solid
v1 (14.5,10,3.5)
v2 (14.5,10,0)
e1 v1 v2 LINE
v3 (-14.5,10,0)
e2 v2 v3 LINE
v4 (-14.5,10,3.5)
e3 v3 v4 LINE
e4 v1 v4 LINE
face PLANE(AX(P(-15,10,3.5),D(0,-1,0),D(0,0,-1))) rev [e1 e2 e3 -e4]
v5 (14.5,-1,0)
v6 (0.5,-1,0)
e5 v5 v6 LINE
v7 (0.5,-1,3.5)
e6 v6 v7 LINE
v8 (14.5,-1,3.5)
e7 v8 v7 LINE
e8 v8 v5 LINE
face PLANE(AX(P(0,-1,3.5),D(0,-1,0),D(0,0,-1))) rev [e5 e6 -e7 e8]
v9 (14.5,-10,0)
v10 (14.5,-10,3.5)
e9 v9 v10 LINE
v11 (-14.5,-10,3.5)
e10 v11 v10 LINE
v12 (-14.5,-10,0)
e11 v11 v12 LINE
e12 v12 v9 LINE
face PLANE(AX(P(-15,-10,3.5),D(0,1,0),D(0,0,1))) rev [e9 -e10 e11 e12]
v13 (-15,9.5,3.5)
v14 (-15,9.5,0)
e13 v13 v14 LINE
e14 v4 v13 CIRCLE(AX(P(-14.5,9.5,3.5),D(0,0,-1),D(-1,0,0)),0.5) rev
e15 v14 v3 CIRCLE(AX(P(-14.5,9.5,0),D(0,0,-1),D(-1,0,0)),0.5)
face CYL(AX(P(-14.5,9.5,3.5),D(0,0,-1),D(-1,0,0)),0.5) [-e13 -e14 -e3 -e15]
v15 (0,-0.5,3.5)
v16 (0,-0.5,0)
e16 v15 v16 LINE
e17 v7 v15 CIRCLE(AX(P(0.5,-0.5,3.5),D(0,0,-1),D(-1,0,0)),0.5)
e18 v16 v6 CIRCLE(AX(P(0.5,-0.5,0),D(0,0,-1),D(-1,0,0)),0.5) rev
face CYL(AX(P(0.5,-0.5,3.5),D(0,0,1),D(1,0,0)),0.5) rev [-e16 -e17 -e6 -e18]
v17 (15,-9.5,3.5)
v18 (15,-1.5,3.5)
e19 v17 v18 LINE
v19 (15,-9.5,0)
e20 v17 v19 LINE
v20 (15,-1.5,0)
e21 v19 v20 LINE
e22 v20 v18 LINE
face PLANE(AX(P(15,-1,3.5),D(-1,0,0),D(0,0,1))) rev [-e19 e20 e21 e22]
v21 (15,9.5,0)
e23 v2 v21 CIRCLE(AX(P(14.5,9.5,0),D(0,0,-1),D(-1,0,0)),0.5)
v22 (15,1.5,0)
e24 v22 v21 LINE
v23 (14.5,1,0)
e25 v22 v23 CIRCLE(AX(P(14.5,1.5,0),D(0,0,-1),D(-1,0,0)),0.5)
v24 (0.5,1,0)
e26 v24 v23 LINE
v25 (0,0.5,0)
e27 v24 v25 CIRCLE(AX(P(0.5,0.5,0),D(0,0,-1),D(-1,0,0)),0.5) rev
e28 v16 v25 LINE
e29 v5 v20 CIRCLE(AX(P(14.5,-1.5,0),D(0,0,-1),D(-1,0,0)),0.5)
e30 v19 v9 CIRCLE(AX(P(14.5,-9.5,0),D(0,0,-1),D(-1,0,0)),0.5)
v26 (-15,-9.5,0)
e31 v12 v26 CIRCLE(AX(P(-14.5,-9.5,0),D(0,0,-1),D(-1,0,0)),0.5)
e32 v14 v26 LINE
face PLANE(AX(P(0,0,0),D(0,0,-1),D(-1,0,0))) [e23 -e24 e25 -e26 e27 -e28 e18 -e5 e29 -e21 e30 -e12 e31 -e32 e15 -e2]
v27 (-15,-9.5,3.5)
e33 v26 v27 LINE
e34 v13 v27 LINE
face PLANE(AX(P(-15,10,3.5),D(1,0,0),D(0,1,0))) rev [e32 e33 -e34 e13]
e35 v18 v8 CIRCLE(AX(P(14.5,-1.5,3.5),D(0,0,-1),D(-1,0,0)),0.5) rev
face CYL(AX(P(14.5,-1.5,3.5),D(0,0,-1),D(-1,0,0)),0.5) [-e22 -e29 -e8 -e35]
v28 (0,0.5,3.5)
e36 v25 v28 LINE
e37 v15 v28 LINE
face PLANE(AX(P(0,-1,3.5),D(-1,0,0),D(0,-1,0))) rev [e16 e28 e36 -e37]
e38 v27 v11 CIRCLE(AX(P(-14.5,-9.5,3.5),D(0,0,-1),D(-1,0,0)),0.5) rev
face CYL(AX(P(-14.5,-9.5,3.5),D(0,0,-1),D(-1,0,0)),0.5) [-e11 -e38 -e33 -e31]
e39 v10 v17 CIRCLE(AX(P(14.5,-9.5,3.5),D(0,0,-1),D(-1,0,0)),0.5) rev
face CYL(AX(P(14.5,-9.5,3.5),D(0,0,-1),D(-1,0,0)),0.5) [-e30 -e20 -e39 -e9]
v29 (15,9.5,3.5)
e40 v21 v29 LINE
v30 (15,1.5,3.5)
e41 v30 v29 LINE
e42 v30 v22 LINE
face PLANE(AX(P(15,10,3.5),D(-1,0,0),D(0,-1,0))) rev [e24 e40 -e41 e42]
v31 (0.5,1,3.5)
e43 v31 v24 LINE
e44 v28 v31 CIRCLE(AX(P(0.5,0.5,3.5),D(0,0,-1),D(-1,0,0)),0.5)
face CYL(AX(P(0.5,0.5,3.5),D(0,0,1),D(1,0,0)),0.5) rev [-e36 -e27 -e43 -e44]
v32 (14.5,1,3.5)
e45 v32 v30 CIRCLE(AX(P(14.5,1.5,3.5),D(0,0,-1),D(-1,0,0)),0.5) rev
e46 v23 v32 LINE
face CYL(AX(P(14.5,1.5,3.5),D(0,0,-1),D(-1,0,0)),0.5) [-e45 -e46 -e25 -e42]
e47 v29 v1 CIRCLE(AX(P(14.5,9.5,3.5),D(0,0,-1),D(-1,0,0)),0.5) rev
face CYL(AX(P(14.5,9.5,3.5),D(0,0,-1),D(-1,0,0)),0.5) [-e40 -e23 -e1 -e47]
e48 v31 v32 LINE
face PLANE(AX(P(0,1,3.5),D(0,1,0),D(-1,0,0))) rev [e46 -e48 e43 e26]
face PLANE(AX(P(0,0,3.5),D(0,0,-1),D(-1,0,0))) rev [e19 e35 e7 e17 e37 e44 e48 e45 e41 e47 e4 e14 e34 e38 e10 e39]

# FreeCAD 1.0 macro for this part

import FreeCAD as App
import Part
import Sketcher

V = App.Vector
Q = App.Units.Quantity


def edges_at(feature, points):
    """Names of the edges that pass closest to the given points."""
    edges = feature.Shape.Edges
    near = lambda p: min(range(len(edges)), key=lambda i: edges[i].distToShape(Part.Vertex(*p))[0])
    return sorted({f"Edge{near(p) + 1}" for p in points})


def add_polygon(sketch, points):
    """Adds a closed chain of lines whose ends are joined by coincident constraints."""
    first, n = sketch.GeometryCount, len(points)
    for a, b in zip(points, points[1:] + points[:1]):
        sketch.addGeometry(Part.LineSegment(App.Vector(*a, 0), App.Vector(*b, 0)), False)
    for i in range(n):
        sketch.addConstraint(Sketcher.Constraint("Coincident", first + i, 2, first + (i + 1) % n, 1))

doc = App.newDocument("Part")
body = doc.addObject("PartDesign::Body", "Body")

sketch1 = doc.addObject("Sketcher::SketchObject", "Sketch")
body.addObject(sketch1)
sketch1.AttachmentSupport = (doc.XY_Plane, [""])
sketch1.MapMode = "FlatFace"
add_polygon(sketch1, [(15, -10), (15, -1), (0, -1), (0, 1), (15, 1), (15, 10), (-15, 10), (-15, -10)])
sketch1.addConstraint(Sketcher.Constraint("Vertical", 0))
sketch1.addConstraint(Sketcher.Constraint("Horizontal", 1))
sketch1.addConstraint(Sketcher.Constraint("Vertical", 2))
sketch1.addConstraint(Sketcher.Constraint("Horizontal", 3))
sketch1.addConstraint(Sketcher.Constraint("Vertical", 4))
sketch1.addConstraint(Sketcher.Constraint("Horizontal", 5))
sketch1.addConstraint(Sketcher.Constraint("Vertical", 6))
sketch1.addConstraint(Sketcher.Constraint("Horizontal", 7))
sketch1.addConstraint(Sketcher.Constraint("Symmetric", 1, 2, 2, 2, -1, 1))
sketch1.addConstraint(Sketcher.Constraint("Symmetric", 4, 2, 6, 2, -1, 1))
sketch1.addConstraint(Sketcher.Constraint("Vertical", 0, 2, 3, 2))
sketch1.addConstraint(Sketcher.Constraint("DistanceX", 1, 2, 1, 1, Q("15 mm")))
sketch1.addConstraint(Sketcher.Constraint("DistanceY", 0, 1, 0, 2, Q("9 mm")))
sketch1.addConstraint(Sketcher.Constraint("DistanceY", 2, 1, 2, 2, Q("2 mm")))
pad1 = doc.addObject("PartDesign::Pad", "Pad")
body.addObject(pad1)
pad1.Profile = sketch1
pad1.Length = 3.5
doc.recompute()

fillet = doc.addObject("PartDesign::Fillet", "Fillet")
body.addObject(fillet)
fillet.Base = (pad1, edges_at(pad1, [
    (-15, -10, 1.75),
    (-15, 10, 1.75),
    (15, 10, 1.75),
    (15, 1, 1.75),
    (0, 1, 1.75),
    (0, -1, 1.75),
    (15, -1, 1.75),
    (15, -10, 1.75),
]))
fillet.Radius = 0.5

doc.recompute()
